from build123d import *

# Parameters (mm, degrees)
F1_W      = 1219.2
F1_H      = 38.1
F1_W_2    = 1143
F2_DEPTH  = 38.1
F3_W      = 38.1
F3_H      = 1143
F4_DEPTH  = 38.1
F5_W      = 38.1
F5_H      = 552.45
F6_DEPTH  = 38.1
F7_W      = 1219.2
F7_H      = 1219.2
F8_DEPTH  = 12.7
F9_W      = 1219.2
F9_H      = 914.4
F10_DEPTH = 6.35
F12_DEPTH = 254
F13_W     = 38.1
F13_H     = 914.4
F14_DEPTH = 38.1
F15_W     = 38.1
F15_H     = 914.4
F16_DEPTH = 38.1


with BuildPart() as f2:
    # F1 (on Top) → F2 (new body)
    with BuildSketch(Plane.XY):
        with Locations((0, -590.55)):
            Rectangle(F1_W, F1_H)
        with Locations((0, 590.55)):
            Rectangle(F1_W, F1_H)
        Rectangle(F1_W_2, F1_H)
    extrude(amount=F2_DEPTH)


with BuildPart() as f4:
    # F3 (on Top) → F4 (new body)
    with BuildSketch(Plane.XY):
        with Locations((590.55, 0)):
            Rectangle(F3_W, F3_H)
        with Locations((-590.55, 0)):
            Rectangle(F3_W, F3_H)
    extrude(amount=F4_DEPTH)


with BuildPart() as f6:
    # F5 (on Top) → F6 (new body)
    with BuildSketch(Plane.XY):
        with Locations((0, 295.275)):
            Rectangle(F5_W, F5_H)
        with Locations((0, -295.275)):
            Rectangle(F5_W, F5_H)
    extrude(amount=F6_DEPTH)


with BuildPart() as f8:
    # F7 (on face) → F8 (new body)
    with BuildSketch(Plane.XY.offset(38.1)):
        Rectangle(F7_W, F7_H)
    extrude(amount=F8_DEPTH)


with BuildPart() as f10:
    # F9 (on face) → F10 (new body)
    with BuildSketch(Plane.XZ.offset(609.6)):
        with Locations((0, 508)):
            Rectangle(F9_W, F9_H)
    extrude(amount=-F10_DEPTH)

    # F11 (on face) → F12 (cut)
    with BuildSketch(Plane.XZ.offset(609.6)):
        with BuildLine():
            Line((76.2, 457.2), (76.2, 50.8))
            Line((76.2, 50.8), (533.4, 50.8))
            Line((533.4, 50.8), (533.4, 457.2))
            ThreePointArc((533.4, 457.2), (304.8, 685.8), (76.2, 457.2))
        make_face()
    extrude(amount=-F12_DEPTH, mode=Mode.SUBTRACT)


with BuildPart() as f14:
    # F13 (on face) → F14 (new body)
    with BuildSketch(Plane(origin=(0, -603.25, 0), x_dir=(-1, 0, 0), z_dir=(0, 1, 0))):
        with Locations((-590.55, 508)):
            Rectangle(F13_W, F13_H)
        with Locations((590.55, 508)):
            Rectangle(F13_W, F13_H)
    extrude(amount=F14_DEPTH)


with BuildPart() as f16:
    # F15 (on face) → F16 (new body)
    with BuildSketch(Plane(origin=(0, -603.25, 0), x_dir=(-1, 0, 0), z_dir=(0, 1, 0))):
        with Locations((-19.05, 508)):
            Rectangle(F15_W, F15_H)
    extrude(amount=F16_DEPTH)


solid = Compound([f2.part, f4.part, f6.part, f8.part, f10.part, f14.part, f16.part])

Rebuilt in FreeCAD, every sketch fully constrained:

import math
import FreeCAD as App
import Part
import Sketcher

V = App.Vector
Q = App.Units.Quantity


def add_polygon(sketch, points):
    """Adds a closed chain of lines whose ends are joined by coincident constraints."""
    first, n = sketch.GeometryCount, len(points)
    for a, b in zip(points, points[1:] + points[:1]):
        sketch.addGeometry(Part.LineSegment(App.Vector(*a, 0), App.Vector(*b, 0)), False)
    for i in range(n):
        sketch.addConstraint(Sketcher.Constraint("Coincident", first + i, 2, first + (i + 1) % n, 1))

doc = App.newDocument("Part")
params = doc.addObject("Spreadsheet::Sheet", "Params")
for row, (alias, value) in enumerate([
    ("sketch1_width", "48 in"),
    ("sketch1_width2", "45 in"),
    ("sketch1_height", "1.5 in"),
    ("pad1_length", "1.5 in"),
    ("sketch2_height", "45 in"),
    ("sketch2_width", "1.5 in"),
    ("pad2_length", "1.5 in"),
    ("sketch3_width", "1.5 in"),
    ("sketch3_height", "21.75 in"),
    ("pad3_length", "1.5 in"),
    ("sketch4_width", "48 in"),
    ("pad4_length", "0.5 in"),
    ("sketch5_width", "48 in"),
    ("sketch5_height", "36 in"),
    ("pad5_length", "0.25 in"),
    ("sketch6_radius", "9 in"),
    ("sketch6_height", "16 in"),
    ("pocket1_length", "10 in"),
    ("sketch7_height", "36 in"),
    ("sketch7_width", "1.5 in"),
    ("pad6_length", "1.5 in"),
    ("sketch8_height", "36 in"),
    ("sketch8_width", "1.5 in"),
    ("pad7_length", "1.5 in"),
], start=1):
    params.set(f"A{row}", alias)
    params.set(f"B{row}", "=" + value)
    params.setAlias(f"B{row}", alias)

body = doc.addObject("PartDesign::Body", "Body")
body.AllowCompound = True

sketch1 = doc.addObject("Sketcher::SketchObject", "Sketch")
body.addObject(sketch1)
sketch1.AttachmentSupport = (doc.XY_Plane, [""])
sketch1.MapMode = "FlatFace"
add_polygon(sketch1, [(-609.6, -571.5), (-609.6, -609.6), (609.6, -609.6), (609.6, -571.5)])
add_polygon(sketch1, [(-609.6, 609.6), (-609.6, 571.5), (609.6, 571.5), (609.6, 609.6)])
add_polygon(sketch1, [(-571.5, 19.05), (-571.5, -19.05), (571.5, -19.05), (571.5, 19.05)])
sketch1.addConstraint([
    Sketcher.Constraint("Vertical", 0),
    Sketcher.Constraint("Horizontal", 1),
    Sketcher.Constraint("Vertical", 2),
    Sketcher.Constraint("Horizontal", 3),
    Sketcher.Constraint("Vertical", 4),
    Sketcher.Constraint("Horizontal", 5),
    Sketcher.Constraint("Vertical", 6),
    Sketcher.Constraint("Horizontal", 7),
    Sketcher.Constraint("Vertical", 8),
    Sketcher.Constraint("Horizontal", 9),
    Sketcher.Constraint("Vertical", 10),
    Sketcher.Constraint("Horizontal", 11),
    Sketcher.Constraint("Symmetric", 2, 2, 4, 2, -1, 1),
    Sketcher.Constraint("Symmetric", 0, 2, 6, 2, -1, 1),
    Sketcher.Constraint("Symmetric", 8, 2, 10, 2, -1, 1),
    Sketcher.Constraint("Vertical", 3, 2, 4, 2),
    Sketcher.Constraint("Equal", 6, 8),
    Sketcher.Constraint("DistanceX", 1, 1, 1, 2, Q("48 in")),
    Sketcher.Constraint("DistanceX", 9, 1, 9, 2, Q("45 in")),
    Sketcher.Constraint("DistanceY", 0, 2, 0, 1, Q("1.5 in")),
    Sketcher.Constraint("DistanceY", 0, 2, -1, 1, Q("24 in")),
])
sketch1.setExpression("Constraints[29]", "Params.sketch1_width")
sketch1.setExpression("Constraints[30]", "Params.sketch1_width2")
sketch1.setExpression("Constraints[31]", "Params.sketch1_height")
pad1 = doc.addObject("PartDesign::Pad", "Pad")
body.addObject(pad1)
pad1.Profile = sketch1
pad1.setExpression("Length", "Params.pad1_length")
body2 = doc.addObject("PartDesign::Body", "Body001")
body2.AllowCompound = True

sketch2 = doc.addObject("Sketcher::SketchObject", "Sketch001")
body2.addObject(sketch2)
sketch2.AttachmentSupport = (doc.getObject("XY_Plane001"), [""])
sketch2.MapMode = "FlatFace"
add_polygon(sketch2, [(571.5, 571.5), (571.5, -571.5), (609.6, -571.5), (609.6, 571.5)])
add_polygon(sketch2, [(-609.6, 571.5), (-609.6, -571.5), (-571.5, -571.5), (-571.5, 571.5)])
sketch2.addConstraint([
    Sketcher.Constraint("Vertical", 0),
    Sketcher.Constraint("Horizontal", 1),
    Sketcher.Constraint("Vertical", 2),
    Sketcher.Constraint("Horizontal", 3),
    Sketcher.Constraint("Vertical", 4),
    Sketcher.Constraint("Horizontal", 5),
    Sketcher.Constraint("Vertical", 6),
    Sketcher.Constraint("Horizontal", 7),
    Sketcher.Constraint("Symmetric", 2, 2, 4, 2, -1, 1),
    Sketcher.Constraint("Symmetric", 0, 2, 6, 2, -1, 1),
    Sketcher.Constraint("Horizontal", 1, 2, 4, 2),
    Sketcher.Constraint("DistanceY", 0, 2, 0, 1, Q("45 in")),
    Sketcher.Constraint("DistanceX", 1, 1, 1, 2, Q("1.5 in")),
    Sketcher.Constraint("DistanceX", -1, 1, 1, 2, Q("24 in")),
])
sketch2.setExpression("Constraints[19]", "Params.sketch2_height")
sketch2.setExpression("Constraints[20]", "Params.sketch2_width")
pad2 = doc.addObject("PartDesign::Pad", "Pad001")
body2.addObject(pad2)
pad2.Profile = sketch2
pad2.setExpression("Length", "Params.pad2_length")
body3 = doc.addObject("PartDesign::Body", "Body002")
body3.AllowCompound = True

sketch3 = doc.addObject("Sketcher::SketchObject", "Sketch002")
body3.addObject(sketch3)
sketch3.AttachmentSupport = (doc.getObject("XY_Plane002"), [""])
sketch3.MapMode = "FlatFace"
add_polygon(sketch3, [(-19.05, 571.5), (-19.05, 19.05), (19.05, 19.05), (19.05, 571.5)])
add_polygon(sketch3, [(-19.05, -19.05), (-19.05, -571.5), (19.05, -571.5), (19.05, -19.05)])
sketch3.addConstraint([
    Sketcher.Constraint("Vertical", 0),
    Sketcher.Constraint("Horizontal", 1),
    Sketcher.Constraint("Vertical", 2),
    Sketcher.Constraint("Horizontal", 3),
    Sketcher.Constraint("Vertical", 4),
    Sketcher.Constraint("Horizontal", 5),
    Sketcher.Constraint("Vertical", 6),
    Sketcher.Constraint("Horizontal", 7),
    Sketcher.Constraint("Symmetric", 2, 2, 4, 2, -1, 1),
    Sketcher.Constraint("Symmetric", 0, 2, 6, 2, -1, 1),
    Sketcher.Constraint("Vertical", 3, 2, 4, 2),
    Sketcher.Constraint("DistanceX", 1, 1, 1, 2, Q("1.5 in")),
    Sketcher.Constraint("DistanceY", 4, 2, 3, 2, Q("45 in")),
    Sketcher.Constraint("DistanceY", 0, 2, 0, 1, Q("21.75 in")),
])
sketch3.setExpression("Constraints[19]", "Params.sketch3_width")
sketch3.setExpression("Constraints[21]", "Params.sketch3_height")
pad3 = doc.addObject("PartDesign::Pad", "Pad002")
body3.addObject(pad3)
pad3.Profile = sketch3
pad3.setExpression("Length", "Params.pad3_length")
body4 = doc.addObject("PartDesign::Body", "Body003")

sketch4 = doc.addObject("Sketcher::SketchObject", "Sketch003")
body4.addObject(sketch4)
sketch4.AttachmentSupport = (doc.getObject("XY_Plane003"), [""])
sketch4.MapMode = "FlatFace"
sketch4.AttachmentOffset = App.Placement(V(0, 0, 1.5 * 25.4), App.Rotation())
add_polygon(sketch4, [(-609.6, 609.6), (-609.6, -609.6), (609.6, -609.6), (609.6, 609.6)])
sketch4.addConstraint([
    Sketcher.Constraint("Vertical", 0),
    Sketcher.Constraint("Horizontal", 1),
    Sketcher.Constraint("Vertical", 2),
    Sketcher.Constraint("Horizontal", 3),
    Sketcher.Constraint("Symmetric", 0, 2, 2, 2, -1, 1),
    Sketcher.Constraint("Equal", 3, 0),
    Sketcher.Constraint("DistanceX", 1, 1, 1, 2, Q("48 in")),
])
sketch4.setExpression("Constraints[10]", "Params.sketch4_width")
pad4 = doc.addObject("PartDesign::Pad", "Pad003")
body4.addObject(pad4)
pad4.Profile = sketch4
pad4.setExpression("Length", "Params.pad4_length")
body5 = doc.addObject("PartDesign::Body", "Body004")

sketch5 = doc.addObject("Sketcher::SketchObject", "Sketch004")
body5.addObject(sketch5)
sketch5.AttachmentSupport = (doc.getObject("XZ_Plane004"), [""])
sketch5.MapMode = "FlatFace"
sketch5.AttachmentOffset = App.Placement(V(0, 0, 24 * 25.4), App.Rotation())
add_polygon(sketch5, [(-609.6, 965.2), (-609.6, 50.8), (609.6, 50.8), (609.6, 965.2)])
sketch5.addConstraint([
    Sketcher.Constraint("Vertical", 0),
    Sketcher.Constraint("Horizontal", 1),
    Sketcher.Constraint("Vertical", 2),
    Sketcher.Constraint("Horizontal", 3),
    Sketcher.Constraint("DistanceX", 1, 1, 1, 2, Q("48 in")),
    Sketcher.Constraint("DistanceY", 0, 2, 0, 1, Q("36 in")),
    Sketcher.Constraint("DistanceX", 0, 2, -1, 1, Q("24 in")),
    Sketcher.Constraint("DistanceY", -1, 1, 0, 2, Q("2 in")),
])
sketch5.setExpression("Constraints[8]", "Params.sketch5_width")
sketch5.setExpression("Constraints[9]", "Params.sketch5_height")
pad5 = doc.addObject("PartDesign::Pad", "Pad004")
body5.addObject(pad5)
pad5.Profile = sketch5
pad5.setExpression("Length", "Params.pad5_length")
pad5.Reversed = True

sketch6 = doc.addObject("Sketcher::SketchObject", "Sketch005")
body5.addObject(sketch6)
sketch6.AttachmentSupport = (doc.getObject("XZ_Plane004"), [""])
sketch6.MapMode = "FlatFace"
sketch6.AttachmentOffset = App.Placement(V(0, 0, 24 * 25.4), App.Rotation())
sketch6.addGeometry([
    Part.LineSegment(V(76.2, 457.2, 0), V(76.2, 50.8, 0)),
    Part.LineSegment(V(76.2, 50.8, 0), V(533.4, 50.8, 0)),
    Part.LineSegment(V(533.4, 50.8, 0), V(533.4, 457.2, 0)),
    Part.ArcOfCircle(Part.Circle(V(304.8, 457.2, 0), V(0, 0, 1), 228.6), math.radians(0), math.radians(180)),
], False)
sketch6.addConstraint([
    Sketcher.Constraint("Coincident", 0, 2, 1, 1),
    Sketcher.Constraint("Coincident", 1, 2, 2, 1),
    Sketcher.Constraint("Tangent", 2, 2, 3, 1),
    Sketcher.Constraint("Tangent", 3, 2, 0, 1),
    Sketcher.Constraint("Vertical", 0),
    Sketcher.Constraint("Horizontal", 1),
    Sketcher.Constraint("Vertical", 2),
    Sketcher.Constraint("Radius", 3, Q("9 in")),
    Sketcher.Constraint("DistanceY", 0, 2, 0, 1, Q("16 in")),
    Sketcher.Constraint("DistanceX", -1, 1, 3, 3, Q("12 in")),
    Sketcher.Constraint("DistanceY", -1, 1, 3, 3, Q("18 in")),
])
sketch6.setExpression("Constraints[7]", "Params.sketch6_radius")
sketch6.setExpression("Constraints[8]", "Params.sketch6_height")
pocket1 = doc.addObject("PartDesign::Pocket", "Pocket")
body5.addObject(pocket1)
pocket1.Profile = sketch6
pocket1.setExpression("Length", "Params.pocket1_length")
body6 = doc.addObject("PartDesign::Body", "Body005")
body6.AllowCompound = True

sketch7 = doc.addObject("Sketcher::SketchObject", "Sketch006")
body6.addObject(sketch7)
sketch7.AttachmentSupport = (doc.getObject("XZ_Plane005"), [""])
sketch7.MapMode = "FlatFace"
sketch7.AttachmentOffset = App.Placement(V(0, 0, 23.75 * 25.4), App.Rotation())
add_polygon(sketch7, [(609.6, 965.2), (609.6, 50.8), (571.5, 50.8), (571.5, 965.2)])
add_polygon(sketch7, [(-571.5, 965.2), (-571.5, 50.8), (-609.6, 50.8), (-609.6, 965.2)])
sketch7.addConstraint([
    Sketcher.Constraint("Vertical", 0),
    Sketcher.Constraint("Horizontal", 1),
    Sketcher.Constraint("Vertical", 2),
    Sketcher.Constraint("Horizontal", 3),
    Sketcher.Constraint("Vertical", 4),
    Sketcher.Constraint("Horizontal", 5),
    Sketcher.Constraint("Vertical", 6),
    Sketcher.Constraint("Horizontal", 7),
    Sketcher.Constraint("Symmetric", 1, 2, 4, 2, -2),
    Sketcher.Constraint("Symmetric", 3, 2, 6, 2, -2),
    Sketcher.Constraint("DistanceY", 0, 2, 0, 1, Q("36 in")),
    Sketcher.Constraint("DistanceX", 1, 2, 1, 1, Q("1.5 in")),
    Sketcher.Constraint("DistanceX", -1, 1, 0, 2, Q("24 in")),
    Sketcher.Constraint("DistanceY", -1, 1, 0, 2, Q("2 in")),
])
sketch7.setExpression("Constraints[18]", "Params.sketch7_height")
sketch7.setExpression("Constraints[19]", "Params.sketch7_width")
pad6 = doc.addObject("PartDesign::Pad", "Pad005")
body6.addObject(pad6)
pad6.Profile = sketch7
pad6.setExpression("Length", "Params.pad6_length")
pad6.Reversed = True
body7 = doc.addObject("PartDesign::Body", "Body006")

sketch8 = doc.addObject("Sketcher::SketchObject", "Sketch007")
body7.addObject(sketch8)
sketch8.AttachmentSupport = (doc.getObject("XZ_Plane006"), [""])
sketch8.MapMode = "FlatFace"
sketch8.AttachmentOffset = App.Placement(V(0, 0, 23.75 * 25.4), App.Rotation())
add_polygon(sketch8, [(38.1, 965.2), (38.1, 50.8), (0, 50.8), (0, 965.2)])
sketch8.addConstraint([
    Sketcher.Constraint("Vertical", 0),
    Sketcher.Constraint("Horizontal", 1),
    Sketcher.Constraint("Vertical", 2),
    Sketcher.Constraint("Horizontal", 3),
    Sketcher.Constraint("PointOnObject", 1, 2, -2),
    Sketcher.Constraint("DistanceY", 0, 2, 0, 1, Q("36 in")),
    Sketcher.Constraint("DistanceX", 1, 2, 1, 1, Q("1.5 in")),
    Sketcher.Constraint("DistanceY", -1, 1, 0, 2, Q("2 in")),
])
sketch8.setExpression("Constraints[9]", "Params.sketch8_height")
sketch8.setExpression("Constraints[10]", "Params.sketch8_width")
pad7 = doc.addObject("PartDesign::Pad", "Pad006")
body7.addObject(pad7)
pad7.Profile = sketch8
pad7.setExpression("Length", "Params.pad7_length")
pad7.Reversed = True

doc.recompute()
